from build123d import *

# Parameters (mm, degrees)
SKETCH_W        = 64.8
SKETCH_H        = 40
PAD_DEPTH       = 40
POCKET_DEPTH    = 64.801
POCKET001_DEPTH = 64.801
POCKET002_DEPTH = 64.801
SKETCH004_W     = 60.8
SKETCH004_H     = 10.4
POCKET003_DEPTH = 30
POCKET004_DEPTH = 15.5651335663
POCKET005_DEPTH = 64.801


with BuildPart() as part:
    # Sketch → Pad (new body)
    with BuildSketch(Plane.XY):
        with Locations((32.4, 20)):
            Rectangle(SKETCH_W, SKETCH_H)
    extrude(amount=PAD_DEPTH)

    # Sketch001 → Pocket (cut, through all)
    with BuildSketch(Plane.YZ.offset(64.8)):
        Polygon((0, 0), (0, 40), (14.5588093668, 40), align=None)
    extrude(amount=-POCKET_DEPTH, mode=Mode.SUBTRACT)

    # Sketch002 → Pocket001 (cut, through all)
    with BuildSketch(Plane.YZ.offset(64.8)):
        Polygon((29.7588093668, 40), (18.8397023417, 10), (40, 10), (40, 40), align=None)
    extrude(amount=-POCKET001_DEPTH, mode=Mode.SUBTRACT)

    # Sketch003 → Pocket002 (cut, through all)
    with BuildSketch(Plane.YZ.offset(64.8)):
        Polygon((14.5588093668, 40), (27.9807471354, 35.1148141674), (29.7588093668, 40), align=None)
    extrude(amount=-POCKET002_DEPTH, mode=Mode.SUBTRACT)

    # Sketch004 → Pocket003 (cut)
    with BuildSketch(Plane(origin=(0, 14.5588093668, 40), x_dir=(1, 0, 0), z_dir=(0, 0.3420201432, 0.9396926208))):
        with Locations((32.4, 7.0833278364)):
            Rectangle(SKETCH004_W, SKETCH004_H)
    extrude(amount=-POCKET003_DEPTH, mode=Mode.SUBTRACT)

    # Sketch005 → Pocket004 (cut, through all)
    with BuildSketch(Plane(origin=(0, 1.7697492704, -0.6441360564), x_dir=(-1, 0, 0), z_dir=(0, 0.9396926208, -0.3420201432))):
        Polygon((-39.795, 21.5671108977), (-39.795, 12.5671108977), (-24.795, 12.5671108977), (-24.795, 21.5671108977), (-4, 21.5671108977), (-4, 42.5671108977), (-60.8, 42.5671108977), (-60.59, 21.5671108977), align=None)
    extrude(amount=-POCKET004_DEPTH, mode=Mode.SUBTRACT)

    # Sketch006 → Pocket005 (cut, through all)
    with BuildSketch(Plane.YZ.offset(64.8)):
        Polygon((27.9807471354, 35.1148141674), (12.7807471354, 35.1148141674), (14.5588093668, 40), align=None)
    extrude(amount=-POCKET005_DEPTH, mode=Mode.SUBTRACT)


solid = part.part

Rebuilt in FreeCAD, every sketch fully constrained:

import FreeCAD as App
import Part
import Sketcher
from FreeCAD import Vector
Q = App.Units.Quantity

doc = App.newDocument("Part")
params = doc.addObject("Spreadsheet::Sheet", "Params")
for row, (alias, value) in enumerate([
    ("sketch1_height", "40 mm"),
    ("sketch1_width", "64.8 mm"),
    ("pad1_length", "40 mm"),
    ("sketch2_height", "40 mm"),
    ("sketch3_height", "30 mm"),
    ("sketch4_width", "15.2 mm"),
    ("sketch5_width", "60.8 mm"),
    ("sketch5_height", "10.4 mm"),
    ("pocket4_length", "30 mm"),
    ("sketch6_width", "15 mm"),
    ("sketch6_height", "9 mm"),
    ("sketch6_height2", "21 mm"),
    ("sketch6_width2", "56.8 mm"),
    ("sketch7_width", "15.2 mm"),
], start=1):
    params.set(f"A{row}", alias)
    params.set(f"B{row}", "=" + value)
    params.setAlias(f"B{row}", alias)

body = doc.addObject("PartDesign::Body", "Body")

# Sketch on XY plane
sketch1 = doc.addObject("Sketcher::SketchObject", "Sketch")
body.addObject(sketch1)
sketch1.AttachmentSupport = (doc.XY_Plane, [""])
sketch1.MapMode = "FlatFace"
sketch1.addGeometry([
    Part.LineSegment(Vector(0, 40, 0), Vector(0, 0, 0)),
    Part.LineSegment(Vector(0, 0, 0), Vector(65, 0, 0)),
    Part.LineSegment(Vector(65, 0, 0), Vector(65, 40, 0)),
    Part.LineSegment(Vector(65, 40, 0), Vector(0, 40, 0)),
], False)
sketch1.addConstraint([
    Sketcher.Constraint("Coincident", 0, 2, 1, 1),
    Sketcher.Constraint("Coincident", 1, 2, 2, 1),
    Sketcher.Constraint("Coincident", 2, 2, 3, 1),
    Sketcher.Constraint("Coincident", 3, 2, 0, 1),
    Sketcher.Constraint("Vertical", 0),
    Sketcher.Constraint("Horizontal", 1),
    Sketcher.Constraint("Vertical", 2),
    Sketcher.Constraint("Horizontal", 3),
    Sketcher.Constraint("Coincident", 0, 2, -1, 1),
    Sketcher.Constraint("DistanceY", 0, 2, 0, 1, 40.0),
    Sketcher.Constraint("DistanceX", 1, 1, 1, 2, 64.8),
])
sketch1.setExpression("Constraints[9]", "Params.sketch1_height")
sketch1.setExpression("Constraints[10]", "Params.sketch1_width")
pad1 = doc.addObject("PartDesign::Pad", "Pad")
body.addObject(pad1)
pad1.Profile = sketch1
pad1.setExpression("Length", "Params.pad1_length")

# Sketch on YZ plane
sketch2 = doc.addObject("Sketcher::SketchObject", "Sketch001")
body.addObject(sketch2)
sketch2.AttachmentSupport = (doc.YZ_Plane, [""])
sketch2.MapMode = "FlatFace"
sketch2.AttachmentOffset = App.Placement(Vector(0, 0, 64.8), App.Rotation())
sketch2.addGeometry([
    Part.LineSegment(Vector(0, 40, 0), Vector(0, 0, 0)),
    Part.LineSegment(Vector(0, 0, 0), Vector(15, 40, 0)),
    Part.LineSegment(Vector(15, 40, 0), Vector(0, 40, 0)),
], False)
sketch2.addConstraint([
    Sketcher.Constraint("Coincident", 0, 2, 1, 1),
    Sketcher.Constraint("Coincident", 1, 2, 2, 1),
    Sketcher.Constraint("Coincident", 2, 2, 0, 1),
    Sketcher.Constraint("Vertical", 0),
    Sketcher.Constraint("Horizontal", 2),
    Sketcher.Constraint("Coincident", 0, 2, -1, 1),
    Sketcher.Constraint("DistanceY", 0, 2, 0, 1, 40.0),
    Sketcher.Constraint("Angle", 1, Q("70 deg")),
])
sketch2.setExpression("Constraints[6]", "Params.sketch2_height")
pocket1 = doc.addObject("PartDesign::Pocket", "Pocket")
body.addObject(pocket1)
pocket1.Profile = sketch2
pocket1.Type = "ThroughAll"

# Sketch on YZ plane
sketch3 = doc.addObject("Sketcher::SketchObject", "Sketch002")
body.addObject(sketch3)
sketch3.AttachmentSupport = (doc.YZ_Plane, [""])
sketch3.MapMode = "FlatFace"
sketch3.AttachmentOffset = App.Placement(Vector(0, 0, 64.8), App.Rotation())
sketch3.addGeometry([
    Part.LineSegment(Vector(30, 40, 0), Vector(19, 10, 0)),
    Part.LineSegment(Vector(19, 10, 0), Vector(40, 10, 0)),
    Part.LineSegment(Vector(40, 10, 0), Vector(40, 40, 0)),
    Part.LineSegment(Vector(40, 40, 0), Vector(30, 40, 0)),
], False)
sketch3.addConstraint([
    Sketcher.Constraint("Coincident", 0, 2, 1, 1),
    Sketcher.Constraint("Coincident", 1, 2, 2, 1),
    Sketcher.Constraint("Coincident", 2, 2, 3, 1),
    Sketcher.Constraint("Coincident", 3, 2, 0, 1),
    Sketcher.Constraint("Horizontal", 1),
    Sketcher.Constraint("Vertical", 2),
    Sketcher.Constraint("Horizontal", 3),
    Sketcher.Constraint("DistanceY", 2, 1, 2, 2, 30.0),
    Sketcher.Constraint("Angle", 0, Q("-110 deg")),
    Sketcher.Constraint("DistanceY", -1, 1, 0, 2, 10.0),
    Sketcher.Constraint("DistanceX", -1, 1, 1, 2, 40.0),
    Sketcher.Constraint("DistanceX", 3, 2, 3, 1, 10.241191),
])
sketch3.setExpression("Constraints[7]", "Params.sketch3_height")
pocket2 = doc.addObject("PartDesign::Pocket", "Pocket001")
body.addObject(pocket2)
pocket2.Profile = sketch3
pocket2.Type = "ThroughAll"

# Sketch on YZ plane
sketch4 = doc.addObject("Sketcher::SketchObject", "Sketch003")
body.addObject(sketch4)
sketch4.AttachmentSupport = (doc.YZ_Plane, [""])
sketch4.MapMode = "FlatFace"
sketch4.AttachmentOffset = App.Placement(Vector(0, 0, 64.8), App.Rotation())
sketch4.addGeometry([
    Part.LineSegment(Vector(15, 40, 0), Vector(28, 35, 0)),
    Part.LineSegment(Vector(28, 35, 0), Vector(30, 40, 0)),
    Part.LineSegment(Vector(30, 40, 0), Vector(15, 40, 0)),
], False)
sketch4.addConstraint([
    Sketcher.Constraint("Coincident", 0, 2, 1, 1),
    Sketcher.Constraint("Coincident", 1, 2, 2, 1),
    Sketcher.Constraint("Coincident", 2, 2, 0, 1),
    Sketcher.Constraint("Horizontal", 2),
    Sketcher.Constraint("Perpendicular", 0, 1),
    Sketcher.Constraint("Angle", 0, Q("-20 deg")),
    Sketcher.Constraint("DistanceX", 2, 2, 2, 1, 15.2),
    Sketcher.Constraint("DistanceY", -1, 1, 1, 2, 40.0),
    Sketcher.Constraint("DistanceX", -1, 1, 1, 2, 29.758809),
])
sketch4.setExpression("Constraints[6]", "Params.sketch4_width")
pocket3 = doc.addObject("PartDesign::Pocket", "Pocket002")
body.addObject(pocket3)
pocket3.Profile = sketch4
pocket3.Type = "ThroughAll"

# Sketch on an angled plane
sketch5 = doc.addObject("Sketcher::SketchObject", "Sketch004")
body.addObject(sketch5)
sketch5.Placement = App.Placement(Vector(0, 14.558809, 40), App.Rotation(Vector(1, 0, 0), Vector(0, 0.939692621, -0.342020143), Vector(0, 0.342020143, 0.939692621), "ZXY"))
sketch5.addGeometry([
    Part.LineSegment(Vector(2, 12, 0), Vector(2, 2, 0)),
    Part.LineSegment(Vector(2, 2, 0), Vector(63, 2, 0)),
    Part.LineSegment(Vector(63, 2, 0), Vector(63, 12, 0)),
    Part.LineSegment(Vector(63, 12, 0), Vector(2, 12, 0)),
], False)
sketch5.addConstraint([
    Sketcher.Constraint("Coincident", 0, 2, 1, 1),
    Sketcher.Constraint("Coincident", 1, 2, 2, 1),
    Sketcher.Constraint("Coincident", 2, 2, 3, 1),
    Sketcher.Constraint("Coincident", 3, 2, 0, 1),
    Sketcher.Constraint("Vertical", 0),
    Sketcher.Constraint("Horizontal", 1),
    Sketcher.Constraint("Vertical", 2),
    Sketcher.Constraint("Horizontal", 3),
    Sketcher.Constraint("DistanceX", 1, 1, 1, 2, 60.8),
    Sketcher.Constraint("DistanceY", 0, 2, 0, 1, 10.4),
    Sketcher.Constraint("DistanceX", -1, 1, 0, 2, 2.0),
    Sketcher.Constraint("DistanceY", -1, 1, 0, 2, 1.883328),
])
sketch5.setExpression("Constraints[8]", "Params.sketch5_width")
sketch5.setExpression("Constraints[9]", "Params.sketch5_height")
pocket4 = doc.addObject("PartDesign::Pocket", "Pocket003")
body.addObject(pocket4)
pocket4.Profile = sketch5
pocket4.setExpression("Length", "Params.pocket4_length")

# Sketch on an angled plane
sketch6 = doc.addObject("Sketcher::SketchObject", "Sketch005")
body.addObject(sketch6)
sketch6.Placement = App.Placement(Vector(0, 1.769749, -0.644136), App.Rotation(Vector(-1, 0, 0), Vector(0, 0.342020143, 0.939692621), Vector(0, 0.939692621, -0.342020143), "ZXY"))
sketch6.addGeometry([
    Part.LineSegment(Vector(-40, 22, 0), Vector(-40, 13, 0)),  # 0
    Part.LineSegment(Vector(-40, 13, 0), Vector(-25, 13, 0)),  # 1
    Part.LineSegment(Vector(-25, 13, 0), Vector(-25, 22, 0)),  # 2
    Part.LineSegment(Vector(-25, 22, 0), Vector(-4, 22, 0)),  # 3
    Part.LineSegment(Vector(-4, 22, 0), Vector(-4, 43, 0)),  # 4
    Part.LineSegment(Vector(-4, 43, 0), Vector(-61, 43, 0)),  # 5
    Part.LineSegment(Vector(-61, 43, 0), Vector(-61, 22, 0)),  # 6
    Part.LineSegment(Vector(-61, 22, 0), Vector(-40, 22, 0)),  # 7
], False)
sketch6.addConstraint([
    Sketcher.Constraint("Coincident", 0, 2, 1, 1),
    Sketcher.Constraint("Coincident", 1, 2, 2, 1),
    Sketcher.Constraint("Coincident", 2, 2, 3, 1),
    Sketcher.Constraint("Coincident", 3, 2, 4, 1),
    Sketcher.Constraint("Coincident", 4, 2, 5, 1),
    Sketcher.Constraint("Coincident", 5, 2, 6, 1),
    Sketcher.Constraint("Coincident", 6, 2, 7, 1),
    Sketcher.Constraint("Coincident", 7, 2, 0, 1),
    Sketcher.Constraint("Vertical", 0),
    Sketcher.Constraint("Horizontal", 1),
    Sketcher.Constraint("Vertical", 2),
    Sketcher.Constraint("Horizontal", 3),
    Sketcher.Constraint("Vertical", 4),
    Sketcher.Constraint("Horizontal", 5),
    Sketcher.Constraint("Horizontal", 7),
    Sketcher.Constraint("Horizontal", 3, 2, 6, 2),
    Sketcher.Constraint("Equal", 3, 7),
    Sketcher.Constraint("DistanceX", 1, 1, 1, 2, 15.0),
    Sketcher.Constraint("DistanceY", 0, 2, 0, 1, 9.0),
    Sketcher.Constraint("DistanceY", 4, 1, 4, 2, 21.0),
    Sketcher.Constraint("DistanceX", 5, 2, 5, 1, 56.8),
    Sketcher.Constraint("DistanceX", 3, 2, -1, 1, 4.0),
    Sketcher.Constraint("DistanceX", 3, 1, 3, 2, 20.795),
    Sketcher.Constraint("DistanceY", -1, 1, 0, 2, 12.567111),
])
sketch6.setExpression("Constraints[17]", "Params.sketch6_width")
sketch6.setExpression("Constraints[18]", "Params.sketch6_height")
sketch6.setExpression("Constraints[19]", "Params.sketch6_height2")
sketch6.setExpression("Constraints[20]", "Params.sketch6_width2")
pocket5 = doc.addObject("PartDesign::Pocket", "Pocket004")
body.addObject(pocket5)
pocket5.Profile = sketch6
pocket5.Type = "ThroughAll"

# Sketch on YZ plane
sketch7 = doc.addObject("Sketcher::SketchObject", "Sketch006")
body.addObject(sketch7)
sketch7.AttachmentSupport = (doc.YZ_Plane, [""])
sketch7.MapMode = "FlatFace"
sketch7.AttachmentOffset = App.Placement(Vector(0, 0, 64.8), App.Rotation())
sketch7.addGeometry([
    Part.LineSegment(Vector(13, 35, 0), Vector(28, 35, 0)),
    Part.LineSegment(Vector(28, 35, 0), Vector(15, 40, 0)),
    Part.LineSegment(Vector(15, 40, 0), Vector(13, 35, 0)),
], False)
sketch7.addConstraint([
    Sketcher.Constraint("Coincident", 0, 2, 1, 1),
    Sketcher.Constraint("Coincident", 1, 2, 2, 1),
    Sketcher.Constraint("Coincident", 2, 2, 0, 1),
    Sketcher.Constraint("Horizontal", 0),
    Sketcher.Constraint("Perpendicular", 1, 2),
    Sketcher.Constraint("Angle", 1, Q("160 deg")),
    Sketcher.Constraint("DistanceX", 0, 1, 0, 2, 15.2),
    Sketcher.Constraint("DistanceY", -1, 1, 1, 2, 40.0),
    Sketcher.Constraint("DistanceX", -1, 1, 1, 2, 14.558809),
])
sketch7.setExpression("Constraints[6]", "Params.sketch7_width")
pocket6 = doc.addObject("PartDesign::Pocket", "Pocket005")
body.addObject(pocket6)
pocket6.Profile = sketch7
pocket6.Type = "ThroughAll"

doc.recompute()
